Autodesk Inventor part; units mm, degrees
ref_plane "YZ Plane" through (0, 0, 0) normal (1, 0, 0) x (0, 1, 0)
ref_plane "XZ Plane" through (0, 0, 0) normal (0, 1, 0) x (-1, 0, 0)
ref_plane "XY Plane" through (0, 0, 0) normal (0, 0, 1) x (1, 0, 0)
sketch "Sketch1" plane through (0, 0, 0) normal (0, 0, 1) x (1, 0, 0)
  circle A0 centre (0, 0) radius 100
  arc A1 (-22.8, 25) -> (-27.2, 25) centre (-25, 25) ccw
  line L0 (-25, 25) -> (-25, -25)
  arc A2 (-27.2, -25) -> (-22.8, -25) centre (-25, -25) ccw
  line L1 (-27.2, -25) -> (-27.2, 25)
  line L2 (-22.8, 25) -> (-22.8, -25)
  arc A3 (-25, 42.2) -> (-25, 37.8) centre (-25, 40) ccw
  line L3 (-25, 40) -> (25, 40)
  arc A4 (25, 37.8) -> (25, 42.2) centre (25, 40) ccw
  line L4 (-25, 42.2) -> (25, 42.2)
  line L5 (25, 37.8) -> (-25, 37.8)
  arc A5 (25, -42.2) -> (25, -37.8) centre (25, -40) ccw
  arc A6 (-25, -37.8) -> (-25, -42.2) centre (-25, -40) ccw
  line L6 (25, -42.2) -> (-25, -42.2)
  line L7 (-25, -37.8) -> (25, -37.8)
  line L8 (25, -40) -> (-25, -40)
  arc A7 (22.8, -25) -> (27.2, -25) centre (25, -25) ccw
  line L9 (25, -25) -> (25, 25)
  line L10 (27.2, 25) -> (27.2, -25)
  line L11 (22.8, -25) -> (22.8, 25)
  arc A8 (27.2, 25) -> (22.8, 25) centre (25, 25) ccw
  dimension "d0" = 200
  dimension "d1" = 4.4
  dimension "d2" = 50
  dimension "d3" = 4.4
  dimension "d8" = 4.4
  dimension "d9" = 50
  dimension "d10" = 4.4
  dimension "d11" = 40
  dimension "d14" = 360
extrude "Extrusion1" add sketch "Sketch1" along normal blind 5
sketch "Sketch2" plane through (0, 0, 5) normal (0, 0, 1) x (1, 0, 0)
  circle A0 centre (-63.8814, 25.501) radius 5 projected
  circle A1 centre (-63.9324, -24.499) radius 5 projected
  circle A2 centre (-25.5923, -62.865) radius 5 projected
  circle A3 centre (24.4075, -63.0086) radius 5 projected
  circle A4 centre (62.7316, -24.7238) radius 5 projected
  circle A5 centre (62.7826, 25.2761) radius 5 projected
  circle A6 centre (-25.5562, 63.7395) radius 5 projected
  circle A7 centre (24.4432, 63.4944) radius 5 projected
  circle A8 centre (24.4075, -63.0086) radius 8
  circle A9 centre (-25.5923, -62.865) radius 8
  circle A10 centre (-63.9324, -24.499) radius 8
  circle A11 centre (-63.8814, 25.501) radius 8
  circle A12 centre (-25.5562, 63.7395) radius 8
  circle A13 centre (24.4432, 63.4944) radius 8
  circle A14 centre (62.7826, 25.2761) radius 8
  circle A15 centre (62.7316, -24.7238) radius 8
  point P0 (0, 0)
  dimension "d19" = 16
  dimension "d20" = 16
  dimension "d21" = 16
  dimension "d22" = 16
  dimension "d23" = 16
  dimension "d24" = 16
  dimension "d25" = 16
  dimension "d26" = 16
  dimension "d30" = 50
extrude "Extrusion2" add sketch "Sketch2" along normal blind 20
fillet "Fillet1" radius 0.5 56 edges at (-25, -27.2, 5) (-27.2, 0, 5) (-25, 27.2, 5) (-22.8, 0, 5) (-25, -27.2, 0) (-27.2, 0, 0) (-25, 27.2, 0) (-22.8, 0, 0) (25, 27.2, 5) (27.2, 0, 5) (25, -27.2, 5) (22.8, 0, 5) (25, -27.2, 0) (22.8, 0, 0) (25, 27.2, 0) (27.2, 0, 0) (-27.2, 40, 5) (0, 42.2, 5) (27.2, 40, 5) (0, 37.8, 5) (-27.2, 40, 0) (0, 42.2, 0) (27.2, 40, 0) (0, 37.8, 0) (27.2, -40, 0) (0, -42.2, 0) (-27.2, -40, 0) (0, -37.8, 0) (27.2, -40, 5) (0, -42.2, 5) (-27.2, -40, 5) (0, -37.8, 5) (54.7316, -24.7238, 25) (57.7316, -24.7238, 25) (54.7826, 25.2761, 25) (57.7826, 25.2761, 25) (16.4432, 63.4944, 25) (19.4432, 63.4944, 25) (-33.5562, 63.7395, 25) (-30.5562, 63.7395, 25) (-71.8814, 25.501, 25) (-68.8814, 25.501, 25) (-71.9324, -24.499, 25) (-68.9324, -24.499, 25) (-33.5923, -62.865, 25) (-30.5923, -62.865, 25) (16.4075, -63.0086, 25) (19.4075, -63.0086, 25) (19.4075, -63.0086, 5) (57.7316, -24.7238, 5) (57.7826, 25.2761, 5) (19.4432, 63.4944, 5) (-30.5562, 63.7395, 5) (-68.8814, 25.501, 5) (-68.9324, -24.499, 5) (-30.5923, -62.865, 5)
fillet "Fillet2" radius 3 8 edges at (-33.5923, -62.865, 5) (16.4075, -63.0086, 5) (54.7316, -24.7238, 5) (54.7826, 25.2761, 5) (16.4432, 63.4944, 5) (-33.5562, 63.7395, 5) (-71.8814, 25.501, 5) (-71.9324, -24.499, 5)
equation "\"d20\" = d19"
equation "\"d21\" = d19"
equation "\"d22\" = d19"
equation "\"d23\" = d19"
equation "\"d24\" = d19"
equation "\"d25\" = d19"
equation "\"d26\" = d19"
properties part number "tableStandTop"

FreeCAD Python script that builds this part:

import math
import FreeCAD as App
import Part
import Sketcher
from FreeCAD import Vector


def edges_at(feature, points):
    """Names of the edges that pass closest to the given points."""
    edges = feature.Shape.Edges
    near = lambda p: min(range(len(edges)), key=lambda i: edges[i].distToShape(Part.Vertex(*p))[0])
    return sorted({f"Edge{near(p) + 1}" for p in points})

doc = App.newDocument("Part")
body = doc.addObject("PartDesign::Body", "Body")

sketch1 = body.newObject("Sketcher::SketchObject", "Sketch")
sketch1.AttachmentSupport = (doc.getObject("XY_Plane"), [""])
sketch1.MapMode = "FlatFace"
sketch1.addGeometry(Part.Circle(Vector(0, 0, 0), Vector(0, 0, 1), 100), False)
sketch1.addGeometry(Part.ArcOfCircle(Part.Circle(Vector(25, -40, 0), Vector(0, 0, 1), 2.2), math.radians(-90), math.radians(90)), False)
sketch1.addGeometry(Part.LineSegment(Vector(25, -42.2, 0), Vector(-25, -42.2, 0)), False)
sketch1.addGeometry(Part.ArcOfCircle(Part.Circle(Vector(-25, -40, 0), Vector(0, 0, 1), 2.2), math.radians(90), math.radians(270)), False)
sketch1.addGeometry(Part.LineSegment(Vector(-25, -37.8, 0), Vector(25, -37.8, 0)), False)
sketch1.addGeometry(Part.ArcOfCircle(Part.Circle(Vector(-25, 25, 0), Vector(0, 0, 1), 2.2), math.radians(0), math.radians(180)), False)
sketch1.addGeometry(Part.LineSegment(Vector(-22.8, 25, 0), Vector(-22.8, -25, 0)), False)
sketch1.addGeometry(Part.ArcOfCircle(Part.Circle(Vector(-25, -25, 0), Vector(0, 0, 1), 2.2), math.radians(180), math.radians(360)), False)
sketch1.addGeometry(Part.LineSegment(Vector(-27.2, -25, 0), Vector(-27.2, 25, 0)), False)
sketch1.addGeometry(Part.ArcOfCircle(Part.Circle(Vector(25, -25, 0), Vector(0, 0, 1), 2.2), math.radians(180), math.radians(360)), False)
sketch1.addGeometry(Part.LineSegment(Vector(22.8, -25, 0), Vector(22.8, 25, 0)), False)
sketch1.addGeometry(Part.ArcOfCircle(Part.Circle(Vector(25, 25, 0), Vector(0, 0, 1), 2.2), math.radians(0), math.radians(180)), False)
sketch1.addGeometry(Part.LineSegment(Vector(27.2, 25, 0), Vector(27.2, -25, 0)), False)
sketch1.addGeometry(Part.ArcOfCircle(Part.Circle(Vector(-25, 40, 0), Vector(0, 0, 1), 2.2), math.radians(90), math.radians(270)), False)
sketch1.addGeometry(Part.LineSegment(Vector(-25, 42.2, 0), Vector(25, 42.2, 0)), False)
sketch1.addGeometry(Part.ArcOfCircle(Part.Circle(Vector(25, 40, 0), Vector(0, 0, 1), 2.2), math.radians(-90), math.radians(90)), False)
sketch1.addGeometry(Part.LineSegment(Vector(25, 37.8, 0), Vector(-25, 37.8, 0)), False)
sketch1.addConstraint(Sketcher.Constraint("Tangent", 1, 1, 2, 1))
sketch1.addConstraint(Sketcher.Constraint("Tangent", 2, 2, 3, 2))
sketch1.addConstraint(Sketcher.Constraint("Tangent", 3, 1, 4, 1))
sketch1.addConstraint(Sketcher.Constraint("Tangent", 4, 2, 1, 2))
sketch1.addConstraint(Sketcher.Constraint("Tangent", 5, 1, 6, 1))
sketch1.addConstraint(Sketcher.Constraint("Tangent", 6, 2, 7, 2))
sketch1.addConstraint(Sketcher.Constraint("Tangent", 7, 1, 8, 1))
sketch1.addConstraint(Sketcher.Constraint("Tangent", 8, 2, 5, 2))
sketch1.addConstraint(Sketcher.Constraint("Tangent", 9, 1, 10, 1))
sketch1.addConstraint(Sketcher.Constraint("Tangent", 10, 2, 11, 2))
sketch1.addConstraint(Sketcher.Constraint("Tangent", 11, 1, 12, 1))
sketch1.addConstraint(Sketcher.Constraint("Tangent", 12, 2, 9, 2))
sketch1.addConstraint(Sketcher.Constraint("Tangent", 13, 1, 14, 1))
sketch1.addConstraint(Sketcher.Constraint("Tangent", 14, 2, 15, 2))
sketch1.addConstraint(Sketcher.Constraint("Tangent", 15, 1, 16, 1))
sketch1.addConstraint(Sketcher.Constraint("Tangent", 16, 2, 13, 2))
sketch1.addConstraint(Sketcher.Constraint("Horizontal", 2))
sketch1.addConstraint(Sketcher.Constraint("Horizontal", 4))
sketch1.addConstraint(Sketcher.Constraint("Vertical", 6))
sketch1.addConstraint(Sketcher.Constraint("Vertical", 8))
sketch1.addConstraint(Sketcher.Constraint("Vertical", 10))
sketch1.addConstraint(Sketcher.Constraint("Vertical", 12))
sketch1.addConstraint(Sketcher.Constraint("Horizontal", 14))
sketch1.addConstraint(Sketcher.Constraint("Horizontal", 16))
sketch1.addConstraint(Sketcher.Constraint("Coincident", 0, 3, -1, 1))
sketch1.addConstraint(Sketcher.Constraint("Equal", 3, 5))
sketch1.addConstraint(Sketcher.Constraint("Equal", 7, 9))
sketch1.addConstraint(Sketcher.Constraint("Equal", 11, 13))
sketch1.addConstraint(Sketcher.Constraint("Symmetric", 5, 3, 9, 3, -1, 1))
sketch1.addConstraint(Sketcher.Constraint("Symmetric", 1, 3, 13, 3, -1, 1))
sketch1.addConstraint(Sketcher.Constraint("Horizontal", 7, 3, 9, 3))
sketch1.addConstraint(Sketcher.Constraint("Horizontal", 5, 3, 11, 3))
sketch1.addConstraint(Sketcher.Constraint("Vertical", 3, 3, 5, 3))
sketch1.addConstraint(Sketcher.Constraint("Vertical", 1, 3, 9, 3))
sketch1.addConstraint(Sketcher.Constraint("Vertical", 11, 3, 15, 3))
sketch1.addConstraint(Sketcher.Constraint("Equal", 16, 6))
sketch1.addConstraint(Sketcher.Constraint("Diameter", 0, 200.0))
sketch1.addConstraint(Sketcher.Constraint("Radius", 1, 2.2))
sketch1.addConstraint(Sketcher.Constraint("DistanceX", 2, 2, 2, 1, 50.0))
sketch1.addConstraint(Sketcher.Constraint("DistanceY", 1, 3, -1, 1, 40.0))
pad1 = body.newObject("PartDesign::Pad", "Pad")
pad1.Profile = sketch1
pad1.Length = 5

sketch2 = body.newObject("Sketcher::SketchObject", "Sketch001")
sketch2.AttachmentSupport = (doc.getObject("XY_Plane"), [""])
sketch2.MapMode = "FlatFace"
sketch2.AttachmentOffset = App.Placement(Vector(0, 0, 5), App.Rotation())
sketch2.addGeometry(Part.Circle(Vector(24, -63, 0), Vector(0, 0, 1), 8), False)
sketch2.addGeometry(Part.Circle(Vector(24, -63, 0), Vector(0, 0, 1), 5), False)
sketch2.addGeometry(Part.Circle(Vector(-26, -63, 0), Vector(0, 0, 1), 8), False)
sketch2.addGeometry(Part.Circle(Vector(-26, -63, 0), Vector(0, 0, 1), 5), False)
sketch2.addGeometry(Part.Circle(Vector(-64, -24, 0), Vector(0, 0, 1), 8), False)
sketch2.addGeometry(Part.Circle(Vector(-64, -24, 0), Vector(0, 0, 1), 5), False)
sketch2.addGeometry(Part.Circle(Vector(-64, 26, 0), Vector(0, 0, 1), 8), False)
sketch2.addGeometry(Part.Circle(Vector(-64, 26, 0), Vector(0, 0, 1), 5), False)
sketch2.addGeometry(Part.Circle(Vector(-26, 64, 0), Vector(0, 0, 1), 8), False)
sketch2.addGeometry(Part.Circle(Vector(-26, 64, 0), Vector(0, 0, 1), 5), False)
sketch2.addGeometry(Part.Circle(Vector(24, 63, 0), Vector(0, 0, 1), 8), False)
sketch2.addGeometry(Part.Circle(Vector(24, 63, 0), Vector(0, 0, 1), 5), False)
sketch2.addGeometry(Part.Circle(Vector(63, 25, 0), Vector(0, 0, 1), 8), False)
sketch2.addGeometry(Part.Circle(Vector(63, 25, 0), Vector(0, 0, 1), 5), False)
sketch2.addGeometry(Part.Circle(Vector(63, -25, 0), Vector(0, 0, 1), 8), False)
sketch2.addGeometry(Part.Circle(Vector(63, -25, 0), Vector(0, 0, 1), 5), False)
sketch2.addConstraint(Sketcher.Constraint("Coincident", 1, 3, 0, 3))
sketch2.addConstraint(Sketcher.Constraint("Coincident", 3, 3, 2, 3))
sketch2.addConstraint(Sketcher.Constraint("Coincident", 5, 3, 4, 3))
sketch2.addConstraint(Sketcher.Constraint("Coincident", 7, 3, 6, 3))
sketch2.addConstraint(Sketcher.Constraint("Coincident", 9, 3, 8, 3))
sketch2.addConstraint(Sketcher.Constraint("Coincident", 11, 3, 10, 3))
sketch2.addConstraint(Sketcher.Constraint("Coincident", 13, 3, 12, 3))
sketch2.addConstraint(Sketcher.Constraint("Coincident", 15, 3, 14, 3))
sketch2.addConstraint(Sketcher.Constraint("Equal", 0, 2))
sketch2.addConstraint(Sketcher.Constraint("Equal", 1, 3))
sketch2.addConstraint(Sketcher.Constraint("Equal", 2, 4))
sketch2.addConstraint(Sketcher.Constraint("Equal", 3, 5))
sketch2.addConstraint(Sketcher.Constraint("Equal", 4, 6))
sketch2.addConstraint(Sketcher.Constraint("Equal", 5, 7))
sketch2.addConstraint(Sketcher.Constraint("Equal", 6, 8))
sketch2.addConstraint(Sketcher.Constraint("Equal", 7, 9))
sketch2.addConstraint(Sketcher.Constraint("Equal", 8, 10))
sketch2.addConstraint(Sketcher.Constraint("Equal", 9, 11))
sketch2.addConstraint(Sketcher.Constraint("Equal", 10, 12))
sketch2.addConstraint(Sketcher.Constraint("Equal", 11, 13))
sketch2.addConstraint(Sketcher.Constraint("Equal", 12, 14))
sketch2.addConstraint(Sketcher.Constraint("Equal", 13, 15))
sketch2.addConstraint(Sketcher.Constraint("Diameter", 0, 16.0))
sketch2.addConstraint(Sketcher.Constraint("Diameter", 1, 10.0))
sketch2.addConstraint(Sketcher.Constraint("DistanceY", 4, 3, 6, 3, 50.0))
sketch2.addConstraint(Sketcher.Constraint("DistanceY", 14, 3, 12, 3, 50.0))
sketch2.addConstraint(Sketcher.Constraint("DistanceX", 2, 3, 0, 3, 49.9998))
sketch2.addConstraint(Sketcher.Constraint("DistanceX", 8, 3, 10, 3, 49.9994))
sketch2.addConstraint(Sketcher.Constraint("DistanceX", 4, 3, 2, 3, 38.34))
sketch2.addConstraint(Sketcher.Constraint("DistanceY", 2, 3, -1, 1, 62.865))
sketch2.addConstraint(Sketcher.Constraint("DistanceY", 4, 3, -1, 1, 24.499))
sketch2.addConstraint(Sketcher.Constraint("DistanceY", -1, 1, 12, 3, 25.276))
sketch2.addConstraint(Sketcher.Constraint("DistanceX", 4, 3, 6, 3, 0.051))
sketch2.addConstraint(Sketcher.Constraint("DistanceX", 2, 3, 8, 3, 0.036))
sketch2.addConstraint(Sketcher.Constraint("DistanceY", 10, 3, 8, 3, 0.245))
sketch2.addConstraint(Sketcher.Constraint("DistanceX", 0, 3, 12, 3, 38.375))
sketch2.addConstraint(Sketcher.Constraint("DistanceX", 14, 3, 12, 3, 0.051))
sketch2.addConstraint(Sketcher.Constraint("DistanceX", -1, 1, 0, 3, 24.4075))
sketch2.addConstraint(Sketcher.Constraint("DistanceY", 0, 3, -1, 1, 63.0086))
sketch2.addConstraint(Sketcher.Constraint("DistanceY", -1, 1, 8, 3, 63.7395))
pad2 = body.newObject("PartDesign::Pad", "Pad001")
pad2.Profile = sketch2
pad2.Length = 20
doc.recompute()

fillet = body.newObject("PartDesign::Fillet", "Fillet")
fillet.Base = (pad2, edges_at(pad2, [
    (-25, -27.2, 5),
    (-27.2, 0, 5),
    (-25, 27.2, 5),
    (-22.8, 0, 5),
    (-25, -27.2, 0),
    (-27.2, 0, 0),
    (-25, 27.2, 0),
    (-22.8, 0, 0),
    (25, 27.2, 5),
    (27.2, 0, 5),
    (25, -27.2, 5),
    (22.8, 0, 5),
    (25, -27.2, 0),
    (22.8, 0, 0),
    (25, 27.2, 0),
    (27.2, 0, 0),
    (-27.2, 40, 5),
    (0, 42.2, 5),
    (27.2, 40, 5),
    (0, 37.8, 5),
    (-27.2, 40, 0),
    (0, 42.2, 0),
    (27.2, 40, 0),
    (0, 37.8, 0),
    (27.2, -40, 0),
    (0, -42.2, 0),
    (-27.2, -40, 0),
    (0, -37.8, 0),
    (27.2, -40, 5),
    (0, -42.2, 5),
    (-27.2, -40, 5),
    (0, -37.8, 5),
    (54.732, -24.724, 25),
    (57.732, -24.724, 25),
    (54.783, 25.276, 25),
    (57.783, 25.276, 25),
    (16.443, 63.494, 25),
    (19.443, 63.494, 25),
    (-33.556, 63.739, 25),
    (-30.556, 63.739, 25),
    (-71.881, 25.501, 25),
    (-68.881, 25.501, 25),
    (-71.932, -24.499, 25),
    (-68.932, -24.499, 25),
    (-33.592, -62.865, 25),
    (-30.592, -62.865, 25),
    (16.407, -63.009, 25),
    (19.407, -63.009, 25),
    (19.407, -63.009, 5),
    (57.732, -24.724, 5),
    (57.783, 25.276, 5),
    (19.443, 63.494, 5),
    (-30.556, 63.739, 5),
    (-68.881, 25.501, 5),
    (-68.932, -24.499, 5),
    (-30.592, -62.865, 5),
]))
fillet.Radius = 0.5
doc.recompute()

fillet2 = body.newObject("PartDesign::Fillet", "Fillet001")
fillet2.Base = (fillet, edges_at(fillet, [
    (-33.592, -62.865, 5),
    (16.407, -63.009, 5),
    (54.732, -24.724, 5),
    (54.783, 25.276, 5),
    (16.443, 63.494, 5),
    (-33.556, 63.739, 5),
    (-71.881, 25.501, 5),
    (-71.932, -24.499, 5),
]))
fillet2.Radius = 3

doc.recompute()
